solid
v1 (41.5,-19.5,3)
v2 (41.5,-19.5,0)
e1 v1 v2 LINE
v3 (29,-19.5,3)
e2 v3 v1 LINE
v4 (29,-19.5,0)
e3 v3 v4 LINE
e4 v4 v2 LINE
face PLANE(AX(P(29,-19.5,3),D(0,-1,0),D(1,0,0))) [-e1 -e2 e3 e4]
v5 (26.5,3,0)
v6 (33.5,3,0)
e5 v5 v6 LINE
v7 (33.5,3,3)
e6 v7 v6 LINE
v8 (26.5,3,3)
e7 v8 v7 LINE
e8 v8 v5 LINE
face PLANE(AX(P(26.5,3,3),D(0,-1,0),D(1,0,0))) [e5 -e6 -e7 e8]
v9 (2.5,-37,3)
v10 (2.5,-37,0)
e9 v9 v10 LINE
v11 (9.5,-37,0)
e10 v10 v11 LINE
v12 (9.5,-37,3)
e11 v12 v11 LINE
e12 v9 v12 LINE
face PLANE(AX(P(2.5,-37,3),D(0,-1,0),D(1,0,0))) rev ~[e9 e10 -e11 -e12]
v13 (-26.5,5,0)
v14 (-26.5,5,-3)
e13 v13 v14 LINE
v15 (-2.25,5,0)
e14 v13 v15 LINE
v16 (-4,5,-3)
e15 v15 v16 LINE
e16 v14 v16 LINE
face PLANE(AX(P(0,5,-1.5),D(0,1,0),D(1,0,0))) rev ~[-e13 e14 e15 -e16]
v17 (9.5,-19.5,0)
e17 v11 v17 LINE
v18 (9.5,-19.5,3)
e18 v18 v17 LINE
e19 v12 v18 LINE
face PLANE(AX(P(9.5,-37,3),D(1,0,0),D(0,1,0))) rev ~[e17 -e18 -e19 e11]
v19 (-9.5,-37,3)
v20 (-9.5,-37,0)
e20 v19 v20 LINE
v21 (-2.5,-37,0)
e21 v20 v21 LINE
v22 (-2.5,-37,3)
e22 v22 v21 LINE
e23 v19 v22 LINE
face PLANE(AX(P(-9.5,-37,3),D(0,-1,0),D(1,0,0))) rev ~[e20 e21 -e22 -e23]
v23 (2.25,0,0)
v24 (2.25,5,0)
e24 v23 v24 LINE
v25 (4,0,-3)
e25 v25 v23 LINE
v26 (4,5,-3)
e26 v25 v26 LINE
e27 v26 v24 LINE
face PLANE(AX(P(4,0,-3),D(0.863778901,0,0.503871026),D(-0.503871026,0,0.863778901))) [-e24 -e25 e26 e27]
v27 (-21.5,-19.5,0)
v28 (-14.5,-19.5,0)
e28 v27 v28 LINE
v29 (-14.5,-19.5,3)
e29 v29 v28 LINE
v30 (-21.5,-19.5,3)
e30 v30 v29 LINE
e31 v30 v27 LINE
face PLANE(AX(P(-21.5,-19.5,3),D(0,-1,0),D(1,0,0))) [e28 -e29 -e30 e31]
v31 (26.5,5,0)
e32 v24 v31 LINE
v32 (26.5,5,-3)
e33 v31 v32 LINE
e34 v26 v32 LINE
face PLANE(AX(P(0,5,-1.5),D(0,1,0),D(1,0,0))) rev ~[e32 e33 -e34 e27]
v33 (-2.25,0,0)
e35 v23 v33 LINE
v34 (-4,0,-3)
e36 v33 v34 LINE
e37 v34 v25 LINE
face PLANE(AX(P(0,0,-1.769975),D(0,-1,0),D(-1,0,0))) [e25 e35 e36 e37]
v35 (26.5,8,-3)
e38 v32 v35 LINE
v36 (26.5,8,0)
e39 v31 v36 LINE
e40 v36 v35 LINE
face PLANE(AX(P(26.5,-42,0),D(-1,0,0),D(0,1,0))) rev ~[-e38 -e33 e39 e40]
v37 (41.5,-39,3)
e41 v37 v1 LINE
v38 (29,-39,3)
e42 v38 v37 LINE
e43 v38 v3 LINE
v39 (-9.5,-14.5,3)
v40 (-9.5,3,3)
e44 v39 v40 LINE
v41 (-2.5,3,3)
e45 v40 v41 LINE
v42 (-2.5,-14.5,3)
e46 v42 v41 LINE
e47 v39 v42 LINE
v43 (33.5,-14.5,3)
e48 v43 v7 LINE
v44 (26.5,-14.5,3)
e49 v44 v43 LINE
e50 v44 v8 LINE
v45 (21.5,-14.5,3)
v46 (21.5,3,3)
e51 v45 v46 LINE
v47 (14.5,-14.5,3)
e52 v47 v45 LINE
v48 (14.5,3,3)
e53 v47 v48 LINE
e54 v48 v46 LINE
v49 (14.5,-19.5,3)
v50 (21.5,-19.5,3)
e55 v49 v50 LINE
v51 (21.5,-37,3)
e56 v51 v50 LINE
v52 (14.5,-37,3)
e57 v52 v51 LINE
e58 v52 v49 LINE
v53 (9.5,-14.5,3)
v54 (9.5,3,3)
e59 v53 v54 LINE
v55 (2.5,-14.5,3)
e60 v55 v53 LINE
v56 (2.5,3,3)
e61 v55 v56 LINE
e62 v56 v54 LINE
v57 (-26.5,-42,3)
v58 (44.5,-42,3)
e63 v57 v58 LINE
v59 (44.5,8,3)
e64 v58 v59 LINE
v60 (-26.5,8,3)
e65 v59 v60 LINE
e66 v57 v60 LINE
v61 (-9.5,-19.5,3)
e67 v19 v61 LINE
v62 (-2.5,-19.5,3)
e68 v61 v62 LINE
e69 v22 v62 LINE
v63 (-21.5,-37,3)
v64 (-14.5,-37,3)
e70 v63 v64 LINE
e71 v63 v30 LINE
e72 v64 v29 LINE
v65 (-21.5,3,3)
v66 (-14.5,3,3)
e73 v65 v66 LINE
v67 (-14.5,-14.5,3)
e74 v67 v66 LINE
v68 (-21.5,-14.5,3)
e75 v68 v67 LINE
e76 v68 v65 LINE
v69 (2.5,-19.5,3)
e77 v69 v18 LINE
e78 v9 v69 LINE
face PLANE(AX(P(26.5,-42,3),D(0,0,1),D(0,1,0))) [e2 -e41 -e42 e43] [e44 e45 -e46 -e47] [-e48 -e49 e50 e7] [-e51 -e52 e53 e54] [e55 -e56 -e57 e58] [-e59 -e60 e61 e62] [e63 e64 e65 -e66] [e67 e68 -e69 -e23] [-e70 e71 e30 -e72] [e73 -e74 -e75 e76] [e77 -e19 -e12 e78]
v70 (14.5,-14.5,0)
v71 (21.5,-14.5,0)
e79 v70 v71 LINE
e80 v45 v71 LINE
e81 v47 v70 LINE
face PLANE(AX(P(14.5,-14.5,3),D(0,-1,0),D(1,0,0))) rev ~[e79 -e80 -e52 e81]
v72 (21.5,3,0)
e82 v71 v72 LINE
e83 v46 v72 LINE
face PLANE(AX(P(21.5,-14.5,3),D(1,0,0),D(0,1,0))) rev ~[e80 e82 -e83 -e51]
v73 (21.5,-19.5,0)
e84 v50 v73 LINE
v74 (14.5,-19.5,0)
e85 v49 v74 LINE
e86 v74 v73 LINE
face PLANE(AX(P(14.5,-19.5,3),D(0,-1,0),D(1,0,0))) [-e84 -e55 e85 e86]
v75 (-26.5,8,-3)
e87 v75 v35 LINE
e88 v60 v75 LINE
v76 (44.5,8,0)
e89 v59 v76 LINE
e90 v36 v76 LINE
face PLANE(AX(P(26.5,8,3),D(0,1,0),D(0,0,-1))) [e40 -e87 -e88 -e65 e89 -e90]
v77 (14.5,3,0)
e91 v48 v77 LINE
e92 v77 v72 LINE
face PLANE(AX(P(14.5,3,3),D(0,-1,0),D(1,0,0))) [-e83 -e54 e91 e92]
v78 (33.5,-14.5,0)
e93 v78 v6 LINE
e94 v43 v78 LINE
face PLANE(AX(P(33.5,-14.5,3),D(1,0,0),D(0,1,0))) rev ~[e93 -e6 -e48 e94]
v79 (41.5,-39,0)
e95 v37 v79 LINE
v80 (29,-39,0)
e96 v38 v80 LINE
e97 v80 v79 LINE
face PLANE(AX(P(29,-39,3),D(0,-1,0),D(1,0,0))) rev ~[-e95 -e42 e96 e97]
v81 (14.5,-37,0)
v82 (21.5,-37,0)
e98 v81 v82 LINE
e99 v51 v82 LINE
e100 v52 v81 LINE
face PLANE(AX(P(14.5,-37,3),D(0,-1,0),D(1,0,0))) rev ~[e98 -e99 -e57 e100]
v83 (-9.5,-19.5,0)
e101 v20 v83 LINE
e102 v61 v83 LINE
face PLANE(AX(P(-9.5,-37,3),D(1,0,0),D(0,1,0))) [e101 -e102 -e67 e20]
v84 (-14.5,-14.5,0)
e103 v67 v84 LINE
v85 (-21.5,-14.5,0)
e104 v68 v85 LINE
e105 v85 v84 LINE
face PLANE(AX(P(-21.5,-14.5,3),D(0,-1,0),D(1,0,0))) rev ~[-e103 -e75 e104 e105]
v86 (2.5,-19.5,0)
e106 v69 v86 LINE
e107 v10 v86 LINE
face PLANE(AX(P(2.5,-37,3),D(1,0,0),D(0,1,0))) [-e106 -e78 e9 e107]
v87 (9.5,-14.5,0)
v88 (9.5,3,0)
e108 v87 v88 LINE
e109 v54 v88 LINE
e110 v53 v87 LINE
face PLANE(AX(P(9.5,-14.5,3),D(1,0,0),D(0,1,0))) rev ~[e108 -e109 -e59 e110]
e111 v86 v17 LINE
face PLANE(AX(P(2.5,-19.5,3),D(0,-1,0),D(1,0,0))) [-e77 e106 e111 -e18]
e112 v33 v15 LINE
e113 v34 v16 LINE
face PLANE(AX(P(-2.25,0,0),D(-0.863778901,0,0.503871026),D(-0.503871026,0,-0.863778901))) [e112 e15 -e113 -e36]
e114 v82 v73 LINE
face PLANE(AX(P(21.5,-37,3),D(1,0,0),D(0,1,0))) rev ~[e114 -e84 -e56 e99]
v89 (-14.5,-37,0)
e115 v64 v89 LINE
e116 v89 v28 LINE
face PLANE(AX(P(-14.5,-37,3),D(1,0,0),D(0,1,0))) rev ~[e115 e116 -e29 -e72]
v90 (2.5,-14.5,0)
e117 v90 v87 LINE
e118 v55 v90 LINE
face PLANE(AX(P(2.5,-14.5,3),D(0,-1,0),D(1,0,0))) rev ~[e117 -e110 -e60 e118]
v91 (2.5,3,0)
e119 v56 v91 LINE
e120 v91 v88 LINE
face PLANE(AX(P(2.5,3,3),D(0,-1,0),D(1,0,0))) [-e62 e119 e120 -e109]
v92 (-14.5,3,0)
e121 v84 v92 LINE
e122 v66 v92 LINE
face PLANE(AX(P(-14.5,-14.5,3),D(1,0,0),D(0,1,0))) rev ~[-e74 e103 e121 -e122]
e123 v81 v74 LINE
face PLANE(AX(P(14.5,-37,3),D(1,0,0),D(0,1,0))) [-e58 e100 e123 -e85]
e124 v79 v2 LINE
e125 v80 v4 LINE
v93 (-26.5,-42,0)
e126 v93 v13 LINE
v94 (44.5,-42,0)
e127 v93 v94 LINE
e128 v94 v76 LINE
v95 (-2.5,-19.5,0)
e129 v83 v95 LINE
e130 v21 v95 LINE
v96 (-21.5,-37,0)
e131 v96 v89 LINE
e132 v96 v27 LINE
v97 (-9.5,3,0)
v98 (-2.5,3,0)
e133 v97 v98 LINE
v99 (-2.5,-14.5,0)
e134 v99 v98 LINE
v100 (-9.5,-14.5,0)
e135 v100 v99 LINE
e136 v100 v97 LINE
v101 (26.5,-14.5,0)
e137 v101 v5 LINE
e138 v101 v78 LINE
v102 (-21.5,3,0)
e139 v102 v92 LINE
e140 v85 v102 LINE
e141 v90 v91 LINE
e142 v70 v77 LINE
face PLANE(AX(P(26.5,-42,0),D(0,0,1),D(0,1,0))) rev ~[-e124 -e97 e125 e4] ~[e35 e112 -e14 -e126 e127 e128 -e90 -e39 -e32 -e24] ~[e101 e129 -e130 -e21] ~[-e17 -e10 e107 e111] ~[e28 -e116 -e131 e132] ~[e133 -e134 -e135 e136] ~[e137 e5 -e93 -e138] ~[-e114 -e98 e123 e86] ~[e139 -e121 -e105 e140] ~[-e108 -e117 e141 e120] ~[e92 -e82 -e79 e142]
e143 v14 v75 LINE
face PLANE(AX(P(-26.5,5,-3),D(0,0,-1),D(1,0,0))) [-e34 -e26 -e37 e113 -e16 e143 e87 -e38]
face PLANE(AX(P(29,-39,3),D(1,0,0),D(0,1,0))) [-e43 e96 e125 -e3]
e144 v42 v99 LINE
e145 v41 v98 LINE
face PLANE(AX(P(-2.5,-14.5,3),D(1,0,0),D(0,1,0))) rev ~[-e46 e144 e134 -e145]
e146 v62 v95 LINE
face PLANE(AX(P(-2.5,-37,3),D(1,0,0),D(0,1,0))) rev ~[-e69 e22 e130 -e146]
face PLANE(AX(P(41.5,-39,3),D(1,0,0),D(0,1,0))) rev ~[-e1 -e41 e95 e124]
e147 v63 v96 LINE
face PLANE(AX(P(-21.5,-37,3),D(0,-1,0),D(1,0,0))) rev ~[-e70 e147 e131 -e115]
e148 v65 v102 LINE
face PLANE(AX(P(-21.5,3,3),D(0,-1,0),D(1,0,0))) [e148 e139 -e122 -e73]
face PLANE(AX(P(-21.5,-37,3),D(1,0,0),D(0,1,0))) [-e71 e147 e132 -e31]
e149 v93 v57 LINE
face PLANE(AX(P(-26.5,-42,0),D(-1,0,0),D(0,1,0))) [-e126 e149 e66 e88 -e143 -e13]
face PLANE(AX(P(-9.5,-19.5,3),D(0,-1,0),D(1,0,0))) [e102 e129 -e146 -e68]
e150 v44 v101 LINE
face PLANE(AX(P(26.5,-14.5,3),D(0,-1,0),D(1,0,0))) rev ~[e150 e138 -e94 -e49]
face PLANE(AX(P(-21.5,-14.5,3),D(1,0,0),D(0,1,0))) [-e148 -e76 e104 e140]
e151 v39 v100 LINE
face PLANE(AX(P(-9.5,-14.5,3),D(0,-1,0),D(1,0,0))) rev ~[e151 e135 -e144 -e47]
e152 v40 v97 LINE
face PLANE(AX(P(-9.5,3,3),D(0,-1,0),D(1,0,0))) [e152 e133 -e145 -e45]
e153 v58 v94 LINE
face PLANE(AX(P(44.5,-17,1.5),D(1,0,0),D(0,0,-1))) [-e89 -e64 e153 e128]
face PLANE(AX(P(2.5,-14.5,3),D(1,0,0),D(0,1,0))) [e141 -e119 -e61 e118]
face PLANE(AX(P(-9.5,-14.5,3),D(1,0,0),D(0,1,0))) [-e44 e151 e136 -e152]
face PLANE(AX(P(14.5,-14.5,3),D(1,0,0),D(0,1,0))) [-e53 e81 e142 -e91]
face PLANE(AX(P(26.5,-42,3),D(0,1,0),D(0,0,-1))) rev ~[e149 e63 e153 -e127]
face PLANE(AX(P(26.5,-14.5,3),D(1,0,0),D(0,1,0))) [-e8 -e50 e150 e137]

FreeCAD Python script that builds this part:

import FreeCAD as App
import Part
import Sketcher
Q = App.Units.Quantity


def add_polygon(sketch, points):
    """Adds a closed chain of lines whose ends are joined by coincident constraints."""
    first, n = sketch.GeometryCount, len(points)
    for a, b in zip(points, points[1:] + points[:1]):
        sketch.addGeometry(Part.LineSegment(App.Vector(*a, 0), App.Vector(*b, 0)), False)
    for i in range(n):
        sketch.addConstraint(Sketcher.Constraint("Coincident", first + i, 2, first + (i + 1) % n, 1))

doc = App.newDocument("Part")
body = doc.addObject("PartDesign::Body", "Body")

sketch1 = body.newObject("Sketcher::SketchObject", "Sketch")
sketch1.AttachmentSupport = (doc.getObject("XZ_Plane"), [""])
sketch1.MapMode = "FlatFace"
add_polygon(sketch1, [(-2.2, 0), (2.2, 0), (4, -3), (-4, -3)])
sketch1.addConstraint(Sketcher.Constraint("Horizontal", 0))
sketch1.addConstraint(Sketcher.Constraint("Horizontal", 2))
sketch1.addConstraint(Sketcher.Constraint("Symmetric", 0, 2, 3, 2, -1, 1))
sketch1.addConstraint(Sketcher.Constraint("Equal", 1, 3))
sketch1.addConstraint(Sketcher.Constraint("DistanceX", 2, 2, 2, 1, Q("8 mm")))
sketch1.addConstraint(Sketcher.Constraint("DistanceX", 0, 1, 0, 2, Q("4.5 mm")))
sketch1.addConstraint(Sketcher.Constraint("DistanceY", 1, 2, -1, 1, Q("3 mm")))
pad1 = body.newObject("PartDesign::Pad", "Pad")
pad1.Profile = sketch1
pad1.Length = 5
pad1.Reversed = True

sketch2 = body.newObject("Sketcher::SketchObject", "Sketch001")
sketch2.AttachmentSupport = (doc.getObject("XZ_Plane"), [""])
sketch2.MapMode = "FlatFace"
sketch2.AttachmentOffset = App.Placement(App.Vector(0, 0, -5), App.Rotation())
add_polygon(sketch2, [(-26.5, -3), (-26.5, 0), (26.5, 0), (26.5, -3)])
sketch2.addConstraint(Sketcher.Constraint("Vertical", 0))
sketch2.addConstraint(Sketcher.Constraint("Horizontal", 1))
sketch2.addConstraint(Sketcher.Constraint("Vertical", 2))
sketch2.addConstraint(Sketcher.Constraint("Horizontal", 3))
sketch2.addConstraint(Sketcher.Constraint("Symmetric", 0, 2, 1, 2, -1, 1))
sketch2.addConstraint(Sketcher.Constraint("DistanceX", 1, 1, 1, 2, Q("53 mm")))
sketch2.addConstraint(Sketcher.Constraint("DistanceY", 0, 1, 0, 2, Q("3 mm")))
pad2 = body.newObject("PartDesign::Pad", "Pad001")
pad2.Profile = sketch2
pad2.Length = 3
pad2.Reversed = True

sketch3 = body.newObject("Sketcher::SketchObject", "Sketch002")
sketch3.AttachmentSupport = (doc.getObject("XY_Plane"), [""])
sketch3.MapMode = "FlatFace"
add_polygon(sketch3, [(-26, 8), (-26, -42), (26, -42), (26, 8)])
sketch3.addConstraint(Sketcher.Constraint("Vertical", 0))
sketch3.addConstraint(Sketcher.Constraint("Horizontal", 1))
sketch3.addConstraint(Sketcher.Constraint("Vertical", 2))
sketch3.addConstraint(Sketcher.Constraint("Horizontal", 3))
sketch3.addConstraint(Sketcher.Constraint("DistanceX", 1, 1, 1, 2, Q("53 mm")))
sketch3.addConstraint(Sketcher.Constraint("DistanceY", 0, 2, 0, 1, Q("50 mm")))
sketch3.addConstraint(Sketcher.Constraint("DistanceY", 0, 2, -1, 1, Q("42 mm")))
sketch3.addConstraint(Sketcher.Constraint("DistanceX", 0, 2, -1, 1, Q("26.5 mm")))
pad3 = body.newObject("PartDesign::Pad", "Pad002")
pad3.Profile = sketch3
pad3.Length = 3

sketch4 = body.newObject("Sketcher::SketchObject", "Sketch003")
sketch4.AttachmentSupport = (doc.getObject("YZ_Plane"), [""])
sketch4.MapMode = "FlatFace"
sketch4.AttachmentOffset = App.Placement(App.Vector(0, 0, 26.5), App.Rotation())
add_polygon(sketch4, [(8, 3), (-42, 3), (-42, 0), (8, 0)])
sketch4.addConstraint(Sketcher.Constraint("Horizontal", 0))
sketch4.addConstraint(Sketcher.Constraint("Vertical", 1))
sketch4.addConstraint(Sketcher.Constraint("Horizontal", 2))
sketch4.addConstraint(Sketcher.Constraint("Vertical", 3))
sketch4.addConstraint(Sketcher.Constraint("PointOnObject", 1, 2, -1))
sketch4.addConstraint(Sketcher.Constraint("DistanceX", 0, 2, 0, 1, Q("50 mm")))
sketch4.addConstraint(Sketcher.Constraint("DistanceY", 1, 2, 1, 1, Q("3 mm")))
sketch4.addConstraint(Sketcher.Constraint("DistanceX", 0, 2, -1, 1, Q("42 mm")))
pad4 = body.newObject("PartDesign::Pad", "Pad003")
pad4.Profile = sketch4
pad4.Length = 18

sketch5 = body.newObject("Sketcher::SketchObject", "Sketch004")
sketch5.AttachmentSupport = (doc.getObject("XY_Plane"), [""])
sketch5.MapMode = "FlatFace"
sketch5.AttachmentOffset = App.Placement(App.Vector(0, 0, 3), App.Rotation())
add_polygon(sketch5, [(-22, 3), (-22, -14), (-14, -14), (-14, 3)])
add_polygon(sketch5, [(-22, -20), (-22, -37), (-14, -37), (-14, -20)])
add_polygon(sketch5, [(2, 3), (2, -14), (10, -14), (10, 3)])
add_polygon(sketch5, [(2, -20), (2, -37), (10, -37), (10, -20)])
add_polygon(sketch5, [(-10, 3), (-10, -14), (-2, -14), (-2, 3)])
add_polygon(sketch5, [(-10, -20), (-10, -37), (-2, -37), (-2, -20)])
add_polygon(sketch5, [(26, 3), (26, -14), (34, -14), (34, 3)])
add_polygon(sketch5, [(14, 3), (14, -14), (22, -14), (22, 3)])
add_polygon(sketch5, [(14, -20), (14, -37), (22, -37), (22, -20)])
sketch5.addConstraint(Sketcher.Constraint("Vertical", 0))
sketch5.addConstraint(Sketcher.Constraint("Horizontal", 1))
sketch5.addConstraint(Sketcher.Constraint("Vertical", 2))
sketch5.addConstraint(Sketcher.Constraint("Horizontal", 3))
sketch5.addConstraint(Sketcher.Constraint("Vertical", 4))
sketch5.addConstraint(Sketcher.Constraint("Horizontal", 5))
sketch5.addConstraint(Sketcher.Constraint("Vertical", 6))
sketch5.addConstraint(Sketcher.Constraint("Horizontal", 7))
sketch5.addConstraint(Sketcher.Constraint("Vertical", 8))
sketch5.addConstraint(Sketcher.Constraint("Horizontal", 9))
sketch5.addConstraint(Sketcher.Constraint("Vertical", 10))
sketch5.addConstraint(Sketcher.Constraint("Horizontal", 11))
sketch5.addConstraint(Sketcher.Constraint("Vertical", 12))
sketch5.addConstraint(Sketcher.Constraint("Horizontal", 13))
sketch5.addConstraint(Sketcher.Constraint("Vertical", 14))
sketch5.addConstraint(Sketcher.Constraint("Horizontal", 15))
sketch5.addConstraint(Sketcher.Constraint("Vertical", 16))
sketch5.addConstraint(Sketcher.Constraint("Horizontal", 17))
sketch5.addConstraint(Sketcher.Constraint("Vertical", 18))
sketch5.addConstraint(Sketcher.Constraint("Horizontal", 19))
sketch5.addConstraint(Sketcher.Constraint("Vertical", 20))
sketch5.addConstraint(Sketcher.Constraint("Horizontal", 21))
sketch5.addConstraint(Sketcher.Constraint("Vertical", 22))
sketch5.addConstraint(Sketcher.Constraint("Horizontal", 23))
sketch5.addConstraint(Sketcher.Constraint("Vertical", 24))
sketch5.addConstraint(Sketcher.Constraint("Horizontal", 25))
sketch5.addConstraint(Sketcher.Constraint("Vertical", 26))
sketch5.addConstraint(Sketcher.Constraint("Horizontal", 27))
sketch5.addConstraint(Sketcher.Constraint("Vertical", 28))
sketch5.addConstraint(Sketcher.Constraint("Horizontal", 29))
sketch5.addConstraint(Sketcher.Constraint("Vertical", 30))
sketch5.addConstraint(Sketcher.Constraint("Horizontal", 31))
sketch5.addConstraint(Sketcher.Constraint("Vertical", 32))
sketch5.addConstraint(Sketcher.Constraint("Horizontal", 33))
sketch5.addConstraint(Sketcher.Constraint("Vertical", 34))
sketch5.addConstraint(Sketcher.Constraint("Horizontal", 35))
sketch5.addConstraint(Sketcher.Constraint("Symmetric", 9, 2, 16, 2, -2))
sketch5.addConstraint(Sketcher.Constraint("Symmetric", 11, 2, 18, 2, -2))
sketch5.addConstraint(Sketcher.Constraint("Symmetric", 13, 2, 20, 2, -2))
sketch5.addConstraint(Sketcher.Constraint("Symmetric", 15, 2, 22, 2, -2))
sketch5.addConstraint(Sketcher.Constraint("Symmetric", 1, 2, 28, 2, -2))
sketch5.addConstraint(Sketcher.Constraint("Symmetric", 3, 2, 30, 2, -2))
sketch5.addConstraint(Sketcher.Constraint("Symmetric", 5, 2, 32, 2, -2))
sketch5.addConstraint(Sketcher.Constraint("Symmetric", 7, 2, 34, 2, -2))
sketch5.addConstraint(Sketcher.Constraint("Horizontal", 1, 2, 8, 2))
sketch5.addConstraint(Sketcher.Constraint("Horizontal", 3, 2, 10, 2))
sketch5.addConstraint(Sketcher.Constraint("Horizontal", 5, 2, 12, 2))
sketch5.addConstraint(Sketcher.Constraint("Horizontal", 7, 2, 14, 2))
sketch5.addConstraint(Sketcher.Constraint("Horizontal", 17, 2, 24, 2))
sketch5.addConstraint(Sketcher.Constraint("Horizontal", 19, 2, 26, 2))
sketch5.addConstraint(Sketcher.Constraint("Vertical", 3, 2, 4, 2))
sketch5.addConstraint(Sketcher.Constraint("Vertical", 2, 2, 5, 2))
sketch5.addConstraint(Sketcher.Constraint("Vertical", 11, 2, 12, 2))
sketch5.addConstraint(Sketcher.Constraint("Vertical", 10, 2, 13, 2))
sketch5.addConstraint(Sketcher.Constraint("Equal", 7, 9))
sketch5.addConstraint(Sketcher.Constraint("Equal", 23, 25))
sketch5.addConstraint(Sketcher.Constraint("Equal", 2, 4))
sketch5.addConstraint(Sketcher.Constraint("DistanceX", 1, 1, 1, 2, Q("7 mm")))
sketch5.addConstraint(Sketcher.Constraint("DistanceY", 0, 2, 0, 1, Q("17.5 mm")))
sketch5.addConstraint(Sketcher.Constraint("DistanceY", -1, 1, 2, 2, Q("3 mm")))
sketch5.addConstraint(Sketcher.Constraint("DistanceY", 4, 2, -1, 1, Q("37 mm")))
sketch5.addConstraint(Sketcher.Constraint("DistanceX", 1, 2, 8, 2, Q("17 mm")))
sketch5.addConstraint(Sketcher.Constraint("DistanceX", 1, 2, 16, 2, Q("5 mm")))
sketch5.addConstraint(Sketcher.Constraint("DistanceX", 9, 2, 24, 2, Q("17 mm")))
pocket1 = body.newObject("PartDesign::Pocket", "Pocket")
pocket1.Profile = sketch5
pocket1.Length = 3

sketch6 = body.newObject("Sketcher::SketchObject", "Sketch005")
sketch6.AttachmentSupport = (doc.getObject("XY_Plane"), [""])
sketch6.MapMode = "FlatFace"
sketch6.AttachmentOffset = App.Placement(App.Vector(0, 0, 3), App.Rotation())
add_polygon(sketch6, [(29, -20), (29, -39), (42, -39), (42, -20)])
sketch6.addConstraint(Sketcher.Constraint("Vertical", 0))
sketch6.addConstraint(Sketcher.Constraint("Horizontal", 1))
sketch6.addConstraint(Sketcher.Constraint("Vertical", 2))
sketch6.addConstraint(Sketcher.Constraint("Horizontal", 3))
sketch6.addConstraint(Sketcher.Constraint("DistanceX", 1, 1, 1, 2, Q("12.5 mm")))
sketch6.addConstraint(Sketcher.Constraint("DistanceY", 0, 2, 0, 1, Q("19.5 mm")))
sketch6.addConstraint(Sketcher.Constraint("DistanceX", -1, 1, 0, 2, Q("29 mm")))
sketch6.addConstraint(Sketcher.Constraint("DistanceY", 0, 2, -1, 1, Q("39 mm")))
pocket2 = body.newObject("PartDesign::Pocket", "Pocket001")
pocket2.Profile = sketch6
pocket2.Length = 3

doc.recompute()
